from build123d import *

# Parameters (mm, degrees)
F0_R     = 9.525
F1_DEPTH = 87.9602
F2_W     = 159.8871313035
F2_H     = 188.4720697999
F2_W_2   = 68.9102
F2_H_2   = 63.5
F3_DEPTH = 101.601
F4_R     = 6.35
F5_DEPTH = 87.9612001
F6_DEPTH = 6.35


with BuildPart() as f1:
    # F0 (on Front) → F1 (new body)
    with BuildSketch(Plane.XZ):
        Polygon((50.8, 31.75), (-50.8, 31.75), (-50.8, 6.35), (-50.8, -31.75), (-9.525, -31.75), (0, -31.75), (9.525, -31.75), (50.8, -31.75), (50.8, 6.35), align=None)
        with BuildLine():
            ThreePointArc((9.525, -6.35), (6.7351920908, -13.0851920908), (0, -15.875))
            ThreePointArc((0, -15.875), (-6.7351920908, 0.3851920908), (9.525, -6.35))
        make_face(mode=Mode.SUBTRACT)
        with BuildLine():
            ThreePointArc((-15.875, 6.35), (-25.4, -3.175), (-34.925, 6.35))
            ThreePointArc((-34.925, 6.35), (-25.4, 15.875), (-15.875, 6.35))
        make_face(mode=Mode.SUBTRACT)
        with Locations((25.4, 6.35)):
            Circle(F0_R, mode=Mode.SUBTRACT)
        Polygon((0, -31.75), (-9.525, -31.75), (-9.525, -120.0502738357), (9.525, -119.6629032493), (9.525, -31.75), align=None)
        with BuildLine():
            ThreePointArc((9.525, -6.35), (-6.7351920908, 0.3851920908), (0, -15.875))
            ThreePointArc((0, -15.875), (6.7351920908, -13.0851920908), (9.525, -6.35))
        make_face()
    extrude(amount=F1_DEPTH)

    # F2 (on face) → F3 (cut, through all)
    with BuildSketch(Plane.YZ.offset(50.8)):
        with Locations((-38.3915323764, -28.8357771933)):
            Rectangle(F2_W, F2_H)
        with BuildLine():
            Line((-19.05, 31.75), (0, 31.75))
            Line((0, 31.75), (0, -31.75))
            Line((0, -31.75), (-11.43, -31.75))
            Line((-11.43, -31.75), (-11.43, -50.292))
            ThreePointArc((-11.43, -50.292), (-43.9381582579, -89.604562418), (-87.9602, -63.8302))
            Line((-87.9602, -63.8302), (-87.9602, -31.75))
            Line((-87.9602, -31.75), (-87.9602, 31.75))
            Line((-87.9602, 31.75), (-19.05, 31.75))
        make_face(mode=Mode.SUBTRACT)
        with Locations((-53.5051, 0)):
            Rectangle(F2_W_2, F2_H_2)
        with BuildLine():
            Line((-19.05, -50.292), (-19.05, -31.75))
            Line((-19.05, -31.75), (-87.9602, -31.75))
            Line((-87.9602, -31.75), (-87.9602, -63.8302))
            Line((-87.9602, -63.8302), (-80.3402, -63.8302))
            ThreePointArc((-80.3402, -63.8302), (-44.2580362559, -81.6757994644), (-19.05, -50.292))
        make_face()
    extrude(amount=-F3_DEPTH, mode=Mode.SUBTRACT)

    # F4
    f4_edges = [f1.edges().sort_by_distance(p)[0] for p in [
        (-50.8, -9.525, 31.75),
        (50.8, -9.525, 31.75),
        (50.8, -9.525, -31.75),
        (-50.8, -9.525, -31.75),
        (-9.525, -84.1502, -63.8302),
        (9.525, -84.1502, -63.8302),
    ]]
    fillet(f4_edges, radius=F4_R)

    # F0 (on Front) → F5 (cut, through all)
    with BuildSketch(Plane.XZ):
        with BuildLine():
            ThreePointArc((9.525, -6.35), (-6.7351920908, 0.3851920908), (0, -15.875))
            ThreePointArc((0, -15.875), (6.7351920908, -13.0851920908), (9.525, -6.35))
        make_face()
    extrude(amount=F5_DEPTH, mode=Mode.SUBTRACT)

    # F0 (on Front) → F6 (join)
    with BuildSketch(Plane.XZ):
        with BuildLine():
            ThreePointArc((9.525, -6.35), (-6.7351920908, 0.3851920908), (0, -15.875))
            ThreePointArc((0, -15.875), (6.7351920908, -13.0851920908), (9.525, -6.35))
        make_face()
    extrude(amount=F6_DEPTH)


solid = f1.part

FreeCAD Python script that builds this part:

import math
import FreeCAD as App
import Part
import Sketcher
Q = App.Units.Quantity


def edges_at(feature, points):
    """Names of the edges that pass closest to the given points."""
    edges = feature.Shape.Edges
    near = lambda p: min(range(len(edges)), key=lambda i: edges[i].distToShape(Part.Vertex(*p))[0])
    return sorted({f"Edge{near(p) + 1}" for p in points})

doc = App.newDocument("Part")
body = doc.addObject("PartDesign::Body", "Body")

sketch1 = body.newObject("Sketcher::SketchObject", "Sketch")
sketch1.AttachmentSupport = (doc.getObject("XZ_Plane"), [""])
sketch1.MapMode = "FlatFace"
sketch1.addGeometry(Part.LineSegment(App.Vector(50.8, 31.75, 0), App.Vector(-50.8, 31.75, 0)), False)
sketch1.addGeometry(Part.LineSegment(App.Vector(-50.8, 31.75, 0), App.Vector(-50.8, -31.75, 0)), False)
sketch1.addGeometry(Part.LineSegment(App.Vector(-50.8, -31.75, 0), App.Vector(-9.525, -31.75, 0)), False)
sketch1.addGeometry(Part.LineSegment(App.Vector(-9.525, -31.75, 0), App.Vector(-9.525, -120.050274, 0)), False)
sketch1.addGeometry(Part.LineSegment(App.Vector(-9.525, -120.050274, 0), App.Vector(9.525, -119.662903, 0)), False)
sketch1.addGeometry(Part.LineSegment(App.Vector(9.525, -119.662903, 0), App.Vector(9.525, -31.75, 0)), False)
sketch1.addGeometry(Part.LineSegment(App.Vector(9.525, -31.75, 0), App.Vector(50.8, -31.75, 0)), False)
sketch1.addGeometry(Part.LineSegment(App.Vector(50.8, -31.75, 0), App.Vector(50.8, 31.75, 0)), False)
sketch1.addGeometry(Part.Circle(App.Vector(-25.4, 6.35, 0), App.Vector(0, 0, 1), 9.525), False)
sketch1.addGeometry(Part.Circle(App.Vector(25.4, 6.35, 0), App.Vector(0, 0, 1), 9.525), False)
sketch1.addConstraint(Sketcher.Constraint("Coincident", 0, 2, 1, 1))
sketch1.addConstraint(Sketcher.Constraint("Coincident", 1, 2, 2, 1))
sketch1.addConstraint(Sketcher.Constraint("Coincident", 2, 2, 3, 1))
sketch1.addConstraint(Sketcher.Constraint("Coincident", 3, 2, 4, 1))
sketch1.addConstraint(Sketcher.Constraint("Coincident", 4, 2, 5, 1))
sketch1.addConstraint(Sketcher.Constraint("Coincident", 5, 2, 6, 1))
sketch1.addConstraint(Sketcher.Constraint("Coincident", 6, 2, 7, 1))
sketch1.addConstraint(Sketcher.Constraint("Coincident", 7, 2, 0, 1))
sketch1.addConstraint(Sketcher.Constraint("Horizontal", 0))
sketch1.addConstraint(Sketcher.Constraint("Vertical", 1))
sketch1.addConstraint(Sketcher.Constraint("Horizontal", 2))
sketch1.addConstraint(Sketcher.Constraint("Vertical", 3))
sketch1.addConstraint(Sketcher.Constraint("Vertical", 5))
sketch1.addConstraint(Sketcher.Constraint("Horizontal", 6))
sketch1.addConstraint(Sketcher.Constraint("Vertical", 7))
sketch1.addConstraint(Sketcher.Constraint("Equal", 8, 9))
sketch1.addConstraint(Sketcher.Constraint("Symmetric", 0, 2, 6, 2, -1, 1))
sketch1.addConstraint(Sketcher.Constraint("Symmetric", 8, 3, 9, 3, -2))
sketch1.addConstraint(Sketcher.Constraint("Symmetric", 2, 2, 5, 2, -2))
sketch1.addConstraint(Sketcher.Constraint("Diameter", 8, Q("0.75 in")))
sketch1.addConstraint(Sketcher.Constraint("DistanceX", 0, 2, 0, 1, Q("4 in")))
sketch1.addConstraint(Sketcher.Constraint("DistanceY", 1, 2, 1, 1, Q("2.5 in")))
sketch1.addConstraint(Sketcher.Constraint("DistanceX", 8, 3, -1, 1, Q("1 in")))
sketch1.addConstraint(Sketcher.Constraint("DistanceY", 8, 3, 0, 2, Q("1 in")))
sketch1.addConstraint(Sketcher.Constraint("DistanceX", 2, 1, 2, 2, Q("1.625 in")))
sketch1.addConstraint(Sketcher.Constraint("Distance", 4, Q("19.053938 mm")))
sketch1.addConstraint(Sketcher.Constraint("DistanceY", 3, 2, 3, 1, Q("88.300274 mm")))
pad1 = body.newObject("PartDesign::Pad", "Pad")
pad1.Profile = sketch1
pad1.Length = Q("3.463 in")

sketch2 = body.newObject("Sketcher::SketchObject", "Sketch001")
sketch2.AttachmentSupport = (doc.getObject("YZ_Plane"), [""])
sketch2.MapMode = "FlatFace"
sketch2.AttachmentOffset = App.Placement(App.Vector(0, 0, 2 * 25.4), App.Rotation())
sketch2.addGeometry(Part.LineSegment(App.Vector(-118, 65, 0), App.Vector(-118, -123, 0)), False)
sketch2.addGeometry(Part.LineSegment(App.Vector(-118, -123, 0), App.Vector(42, -123, 0)), False)
sketch2.addGeometry(Part.LineSegment(App.Vector(42, -123, 0), App.Vector(42, 65, 0)), False)
sketch2.addGeometry(Part.LineSegment(App.Vector(42, 65, 0), App.Vector(-118, 65, 0)), False)
sketch2.addGeometry(Part.LineSegment(App.Vector(-19, 32, 0), App.Vector(0, 32, 0)), False)
sketch2.addGeometry(Part.LineSegment(App.Vector(0, 32, 0), App.Vector(0, -32, 0)), False)
sketch2.addGeometry(Part.LineSegment(App.Vector(0, -32, 0), App.Vector(-11, -32, 0)), False)
sketch2.addGeometry(Part.LineSegment(App.Vector(-11, -32, 0), App.Vector(-11, -50, 0)), False)
sketch2.addGeometry(Part.ArcOfCircle(Part.Circle(App.Vector(-51, -51, 0), App.Vector(0, 0, 1), 39), math.radians(-161), math.radians(1)), False)
sketch2.addGeometry(Part.LineSegment(App.Vector(-88, -64, 0), App.Vector(-80, -64, 0)), False)
sketch2.addGeometry(Part.ArcOfCircle(Part.Circle(App.Vector(-51, -50, 0), App.Vector(0, 0, 1), 32), math.radians(-155), math.radians(0)), False)
sketch2.addGeometry(Part.LineSegment(App.Vector(-19, -50, 0), App.Vector(-19, 32, 0)), False)
sketch2.addConstraint(Sketcher.Constraint("Coincident", 0, 2, 1, 1))
sketch2.addConstraint(Sketcher.Constraint("Coincident", 1, 2, 2, 1))
sketch2.addConstraint(Sketcher.Constraint("Coincident", 2, 2, 3, 1))
sketch2.addConstraint(Sketcher.Constraint("Coincident", 3, 2, 0, 1))
sketch2.addConstraint(Sketcher.Constraint("Coincident", 4, 2, 5, 1))
sketch2.addConstraint(Sketcher.Constraint("Coincident", 5, 2, 6, 1))
sketch2.addConstraint(Sketcher.Constraint("Coincident", 6, 2, 7, 1))
sketch2.addConstraint(Sketcher.Constraint("Coincident", 7, 2, 8, 2))
sketch2.addConstraint(Sketcher.Constraint("Coincident", 8, 1, 9, 1))
sketch2.addConstraint(Sketcher.Constraint("Coincident", 9, 2, 10, 1))
sketch2.addConstraint(Sketcher.Constraint("Tangent", 10, 2, 11, 1))
sketch2.addConstraint(Sketcher.Constraint("Coincident", 11, 2, 4, 1))
sketch2.addConstraint(Sketcher.Constraint("Vertical", 0))
sketch2.addConstraint(Sketcher.Constraint("Horizontal", 1))
sketch2.addConstraint(Sketcher.Constraint("Vertical", 2))
sketch2.addConstraint(Sketcher.Constraint("Horizontal", 3))
sketch2.addConstraint(Sketcher.Constraint("Horizontal", 4))
sketch2.addConstraint(Sketcher.Constraint("Vertical", 5))
sketch2.addConstraint(Sketcher.Constraint("Horizontal", 6))
sketch2.addConstraint(Sketcher.Constraint("Vertical", 7))
sketch2.addConstraint(Sketcher.Constraint("Horizontal", 9))
sketch2.addConstraint(Sketcher.Constraint("Vertical", 11))
sketch2.addConstraint(Sketcher.Constraint("Symmetric", 4, 2, 5, 2, -1, 1))
sketch2.addConstraint(Sketcher.Constraint("Horizontal", 10, 3, 7, 2))
sketch2.addConstraint(Sketcher.Constraint("Radius", 8, Q("1.55 in")))
sketch2.addConstraint(Sketcher.Constraint("DistanceX", 9, 1, 9, 2, Q("0.3 in")))
sketch2.addConstraint(Sketcher.Constraint("DistanceY", 5, 2, 5, 1, Q("2.5 in")))
sketch2.addConstraint(Sketcher.Constraint("DistanceX", 4, 1, 4, 2, Q("0.75 in")))
sketch2.addConstraint(Sketcher.Constraint("DistanceX", 6, 2, 6, 1, Q("0.45 in")))
sketch2.addConstraint(Sketcher.Constraint("DistanceY", 7, 2, 7, 1, Q("0.73 in")))
sketch2.addConstraint(Sketcher.Constraint("DistanceX", 8, 1, -1, 1, Q("3.463 in")))
sketch2.addConstraint(Sketcher.Constraint("DistanceY", 8, 1, -1, 1, Q("2.513 in")))
sketch2.addConstraint(Sketcher.Constraint("DistanceX", 1, 1, 1, 2, Q("159.887131 mm")))
sketch2.addConstraint(Sketcher.Constraint("DistanceY", 0, 2, 0, 1, Q("188.47207 mm")))
sketch2.addConstraint(Sketcher.Constraint("DistanceX", 0, 2, -1, 1, Q("118.335098 mm")))
sketch2.addConstraint(Sketcher.Constraint("DistanceY", 0, 2, -1, 1, Q("123.071812 mm")))
pocket1 = body.newObject("PartDesign::Pocket", "Pocket")
pocket1.Profile = sketch2
pocket1.Type = "ThroughAll"
doc.recompute()

fillet = body.newObject("PartDesign::Fillet", "Fillet")
fillet.Base = (pocket1, edges_at(pocket1, [
    (-50.8, -9.525, 31.75),
    (50.8, -9.525, 31.75),
    (50.8, -9.525, -31.75),
    (-50.8, -9.525, -31.75),
    (-9.525, -84.15, -63.83),
    (9.525, -84.15, -63.83),
]))
fillet.Radius = Q("0.25 in")

sketch3 = body.newObject("Sketcher::SketchObject", "Sketch002")
sketch3.AttachmentSupport = (doc.getObject("XZ_Plane"), [""])
sketch3.MapMode = "FlatFace"
sketch3.addGeometry(Part.Circle(App.Vector(0, -6, 0), App.Vector(0, 0, 1), 10), False)
sketch3.addConstraint(Sketcher.Constraint("PointOnObject", 0, 3, -2))
sketch3.addConstraint(Sketcher.Constraint("Diameter", 0, Q("0.75 in")))
sketch3.addConstraint(Sketcher.Constraint("DistanceY", 0, 3, -1, 1, Q("0.25 in")))
pocket2 = body.newObject("PartDesign::Pocket", "Pocket001")
pocket2.Profile = sketch3
pocket2.Type = "ThroughAll"
pocket2.Reversed = True

sketch4 = body.newObject("Sketcher::SketchObject", "Sketch003")
sketch4.AttachmentSupport = (doc.getObject("XZ_Plane"), [""])
sketch4.MapMode = "FlatFace"
sketch4.addGeometry(Part.Circle(App.Vector(0, -6, 0), App.Vector(0, 0, 1), 10), False)
sketch4.addConstraint(Sketcher.Constraint("PointOnObject", 0, 3, -2))
sketch4.addConstraint(Sketcher.Constraint("Diameter", 0, Q("0.75 in")))
sketch4.addConstraint(Sketcher.Constraint("DistanceY", 0, 3, -1, 1, Q("0.25 in")))
pad2 = body.newObject("PartDesign::Pad", "Pad001")
pad2.Profile = sketch4
pad2.Length = Q("0.25 in")

doc.recompute()
